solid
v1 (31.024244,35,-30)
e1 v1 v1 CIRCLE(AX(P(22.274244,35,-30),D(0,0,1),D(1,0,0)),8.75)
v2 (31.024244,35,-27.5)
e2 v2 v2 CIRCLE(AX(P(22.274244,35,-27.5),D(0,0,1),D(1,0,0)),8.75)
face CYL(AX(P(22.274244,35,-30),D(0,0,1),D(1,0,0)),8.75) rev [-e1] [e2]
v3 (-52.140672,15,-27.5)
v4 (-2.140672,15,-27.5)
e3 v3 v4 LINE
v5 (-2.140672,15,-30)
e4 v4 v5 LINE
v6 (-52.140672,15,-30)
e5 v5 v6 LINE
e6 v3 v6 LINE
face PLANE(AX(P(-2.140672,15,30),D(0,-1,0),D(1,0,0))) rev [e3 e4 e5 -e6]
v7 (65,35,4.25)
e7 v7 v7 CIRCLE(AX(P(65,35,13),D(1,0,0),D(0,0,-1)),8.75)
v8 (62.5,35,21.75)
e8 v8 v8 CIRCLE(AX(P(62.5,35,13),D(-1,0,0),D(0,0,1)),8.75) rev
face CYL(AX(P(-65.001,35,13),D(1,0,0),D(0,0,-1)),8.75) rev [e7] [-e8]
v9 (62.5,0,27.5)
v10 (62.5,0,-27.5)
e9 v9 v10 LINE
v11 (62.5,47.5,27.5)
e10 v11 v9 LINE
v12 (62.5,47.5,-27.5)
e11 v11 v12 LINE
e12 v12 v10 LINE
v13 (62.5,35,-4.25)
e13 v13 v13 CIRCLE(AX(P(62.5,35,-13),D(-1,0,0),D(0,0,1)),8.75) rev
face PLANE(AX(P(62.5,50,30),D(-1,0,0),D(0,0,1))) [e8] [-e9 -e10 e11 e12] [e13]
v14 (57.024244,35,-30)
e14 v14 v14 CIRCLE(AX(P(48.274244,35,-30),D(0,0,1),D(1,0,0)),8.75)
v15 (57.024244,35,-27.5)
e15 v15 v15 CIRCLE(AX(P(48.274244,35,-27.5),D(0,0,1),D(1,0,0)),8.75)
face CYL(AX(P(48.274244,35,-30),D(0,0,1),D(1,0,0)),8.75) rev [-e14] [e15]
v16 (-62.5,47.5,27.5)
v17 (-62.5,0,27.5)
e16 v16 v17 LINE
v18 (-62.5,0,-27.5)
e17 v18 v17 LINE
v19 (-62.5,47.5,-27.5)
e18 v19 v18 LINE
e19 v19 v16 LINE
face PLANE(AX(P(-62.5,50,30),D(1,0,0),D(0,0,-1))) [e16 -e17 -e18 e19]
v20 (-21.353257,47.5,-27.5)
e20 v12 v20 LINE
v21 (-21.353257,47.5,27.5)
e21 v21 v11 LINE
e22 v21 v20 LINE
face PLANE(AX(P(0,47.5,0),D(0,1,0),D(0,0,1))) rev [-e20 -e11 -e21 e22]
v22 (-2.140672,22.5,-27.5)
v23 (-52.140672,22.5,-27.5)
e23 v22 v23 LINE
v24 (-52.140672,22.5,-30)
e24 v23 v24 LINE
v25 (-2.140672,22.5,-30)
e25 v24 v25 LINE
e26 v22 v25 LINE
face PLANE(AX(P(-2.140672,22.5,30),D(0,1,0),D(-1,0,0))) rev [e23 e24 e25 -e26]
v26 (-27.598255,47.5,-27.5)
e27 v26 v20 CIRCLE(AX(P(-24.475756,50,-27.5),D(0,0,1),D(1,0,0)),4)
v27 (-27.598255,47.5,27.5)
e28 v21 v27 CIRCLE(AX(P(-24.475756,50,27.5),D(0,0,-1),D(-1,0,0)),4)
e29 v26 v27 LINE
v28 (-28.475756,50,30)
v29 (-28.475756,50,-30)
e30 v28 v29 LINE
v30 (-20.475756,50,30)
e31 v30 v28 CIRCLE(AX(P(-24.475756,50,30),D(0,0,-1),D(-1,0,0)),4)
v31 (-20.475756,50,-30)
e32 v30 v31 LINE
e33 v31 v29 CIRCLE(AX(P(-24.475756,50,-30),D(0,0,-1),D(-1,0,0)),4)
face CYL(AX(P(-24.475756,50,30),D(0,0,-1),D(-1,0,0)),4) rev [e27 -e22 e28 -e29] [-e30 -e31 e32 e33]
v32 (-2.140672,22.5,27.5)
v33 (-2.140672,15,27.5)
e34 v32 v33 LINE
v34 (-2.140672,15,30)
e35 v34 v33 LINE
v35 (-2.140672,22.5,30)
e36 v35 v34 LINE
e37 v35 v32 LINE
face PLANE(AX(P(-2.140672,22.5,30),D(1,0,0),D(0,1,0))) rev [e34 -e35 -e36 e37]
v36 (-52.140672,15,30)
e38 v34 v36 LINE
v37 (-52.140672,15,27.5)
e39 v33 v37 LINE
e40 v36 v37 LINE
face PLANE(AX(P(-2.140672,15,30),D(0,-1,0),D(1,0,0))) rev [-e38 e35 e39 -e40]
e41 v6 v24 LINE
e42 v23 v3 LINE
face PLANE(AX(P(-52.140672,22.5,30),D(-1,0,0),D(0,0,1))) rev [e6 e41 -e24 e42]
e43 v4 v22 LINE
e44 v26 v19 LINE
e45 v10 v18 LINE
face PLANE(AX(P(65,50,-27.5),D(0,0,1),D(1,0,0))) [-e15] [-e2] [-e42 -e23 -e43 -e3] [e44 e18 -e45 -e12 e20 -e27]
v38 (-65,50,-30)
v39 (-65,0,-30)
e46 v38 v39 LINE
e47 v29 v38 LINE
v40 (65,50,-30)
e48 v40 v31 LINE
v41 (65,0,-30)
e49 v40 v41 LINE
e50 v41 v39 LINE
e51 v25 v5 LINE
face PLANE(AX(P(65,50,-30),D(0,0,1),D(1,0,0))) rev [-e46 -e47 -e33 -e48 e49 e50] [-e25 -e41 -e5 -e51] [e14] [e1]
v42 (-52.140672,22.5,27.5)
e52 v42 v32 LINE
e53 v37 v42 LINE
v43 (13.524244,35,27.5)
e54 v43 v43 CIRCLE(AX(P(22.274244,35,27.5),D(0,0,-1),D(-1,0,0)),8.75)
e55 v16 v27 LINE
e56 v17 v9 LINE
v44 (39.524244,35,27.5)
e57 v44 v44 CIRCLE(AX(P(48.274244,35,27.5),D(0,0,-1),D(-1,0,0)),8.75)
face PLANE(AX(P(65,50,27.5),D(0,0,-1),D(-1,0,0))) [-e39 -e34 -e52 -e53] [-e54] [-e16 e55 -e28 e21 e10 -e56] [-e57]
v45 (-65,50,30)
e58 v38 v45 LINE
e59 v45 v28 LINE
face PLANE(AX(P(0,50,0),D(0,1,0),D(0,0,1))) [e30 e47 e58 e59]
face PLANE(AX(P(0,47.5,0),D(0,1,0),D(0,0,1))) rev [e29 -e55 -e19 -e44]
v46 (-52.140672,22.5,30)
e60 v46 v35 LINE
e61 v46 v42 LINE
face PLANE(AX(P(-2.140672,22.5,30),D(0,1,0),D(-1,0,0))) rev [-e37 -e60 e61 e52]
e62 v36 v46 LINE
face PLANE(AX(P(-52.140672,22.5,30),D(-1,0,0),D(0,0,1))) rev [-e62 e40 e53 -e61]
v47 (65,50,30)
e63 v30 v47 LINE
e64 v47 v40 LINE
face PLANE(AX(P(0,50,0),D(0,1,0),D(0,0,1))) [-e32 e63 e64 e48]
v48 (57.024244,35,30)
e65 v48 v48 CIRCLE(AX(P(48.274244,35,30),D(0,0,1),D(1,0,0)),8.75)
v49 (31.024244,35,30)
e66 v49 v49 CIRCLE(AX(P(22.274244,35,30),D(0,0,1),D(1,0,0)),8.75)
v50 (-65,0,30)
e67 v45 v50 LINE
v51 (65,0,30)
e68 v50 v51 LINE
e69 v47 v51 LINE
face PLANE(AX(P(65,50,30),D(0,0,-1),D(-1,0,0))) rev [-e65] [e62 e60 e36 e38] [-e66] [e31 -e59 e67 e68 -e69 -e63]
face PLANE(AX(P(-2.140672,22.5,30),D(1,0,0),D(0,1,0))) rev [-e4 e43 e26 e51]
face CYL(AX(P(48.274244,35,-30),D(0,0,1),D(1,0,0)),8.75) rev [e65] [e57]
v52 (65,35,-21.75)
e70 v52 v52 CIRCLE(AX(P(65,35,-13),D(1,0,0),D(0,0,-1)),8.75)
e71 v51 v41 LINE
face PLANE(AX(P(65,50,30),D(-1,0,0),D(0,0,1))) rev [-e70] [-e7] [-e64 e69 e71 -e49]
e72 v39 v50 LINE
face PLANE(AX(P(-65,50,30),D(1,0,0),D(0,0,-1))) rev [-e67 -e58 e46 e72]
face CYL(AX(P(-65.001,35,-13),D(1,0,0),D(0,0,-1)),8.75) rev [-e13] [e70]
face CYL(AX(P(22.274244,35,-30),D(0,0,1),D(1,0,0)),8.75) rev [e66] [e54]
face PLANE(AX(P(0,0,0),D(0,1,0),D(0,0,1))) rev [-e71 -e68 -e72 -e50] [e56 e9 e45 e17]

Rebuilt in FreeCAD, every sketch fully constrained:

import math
import FreeCAD as App
import Part
import Sketcher

V = App.Vector
Q = App.Units.Quantity


def faces_at(feature, points):
    """Names of the faces that lie closest to the given points."""
    faces = feature.Shape.Faces
    near = lambda p: min(range(len(faces)), key=lambda i: faces[i].distToShape(Part.Vertex(*p))[0])
    return sorted({f"Face{near(p) + 1}" for p in points})

doc = App.newDocument("Part")
body = doc.addObject("PartDesign::Body", "Body")

# Sketch on XZ plane
sketch1 = body.newObject("Sketcher::SketchObject", "Sketch")
sketch1.AttachmentSupport = (doc.getObject("XZ_Plane"), [""])
sketch1.MapMode = "FlatFace"
sketch1.addGeometry([
    Part.LineSegment(V(-65, -30, 0), V(-65, 30, 0)),
    Part.LineSegment(V(-65, 30, 0), V(65, 30, 0)),
    Part.LineSegment(V(65, 30, 0), V(65, -30, 0)),
    Part.LineSegment(V(65, -30, 0), V(-65, -30, 0)),
], False)
sketch1.addConstraint([
    Sketcher.Constraint("Coincident", 0, 2, 1, 1),
    Sketcher.Constraint("Coincident", 1, 2, 2, 1),
    Sketcher.Constraint("Coincident", 2, 2, 3, 1),
    Sketcher.Constraint("Coincident", 3, 2, 0, 1),
    Sketcher.Constraint("Vertical", 0),
    Sketcher.Constraint("Horizontal", 1),
    Sketcher.Constraint("Vertical", 2),
    Sketcher.Constraint("Horizontal", 3),
    Sketcher.Constraint("Symmetric", 0, 2, 2, 2, -1, 1),
    Sketcher.Constraint("DistanceX", 1, 1, 1, 2, Q("130 mm")),
    Sketcher.Constraint("DistanceY", 0, 1, 0, 2, Q("60 mm")),
])
pad1 = body.newObject("PartDesign::Pad", "Pad")
pad1.Profile = sketch1
pad1.Length = 50
pad1.Reversed = True
doc.recompute()

thickness = body.newObject("PartDesign::Thickness", "Thickness")
thickness.Base = (pad1, faces_at(pad1, [(0, 0, 0)]))
thickness.Value = 2.5
thickness.Reversed = True
thickness.Join = "Intersection"

# Sketch on YZ plane
sketch2 = body.newObject("Sketcher::SketchObject", "Sketch001")
sketch2.AttachmentSupport = (doc.getObject("YZ_Plane"), [""])
sketch2.MapMode = "FlatFace"
sketch2.AttachmentOffset = App.Placement(V(0, 0, 65), App.Rotation())
sketch2.addGeometry(Part.Circle(V(35, 13, 0), V(0, 0, 1), 9), False)
sketch2.addConstraint([
    Sketcher.Constraint("Diameter", 0, Q("17.5 mm")),
    Sketcher.Constraint("DistanceX", -1, 1, 0, 3, Q("35 mm")),
    Sketcher.Constraint("DistanceY", -1, 1, 0, 3, Q("13 mm")),
])
pocket1 = body.newObject("PartDesign::Pocket", "Pocket")
pocket1.Profile = sketch2
pocket1.Type = "UpToFirst"

# Sketch on YZ plane
sketch3 = body.newObject("Sketcher::SketchObject", "Sketch002")
sketch3.AttachmentSupport = (doc.getObject("YZ_Plane"), [""])
sketch3.MapMode = "FlatFace"
sketch3.AttachmentOffset = App.Placement(V(0, 0, 65), App.Rotation())
sketch3.addGeometry(Part.Circle(V(35, -13, 0), V(0, 0, 1), 9), False)
sketch3.addConstraint([
    Sketcher.Constraint("Diameter", 0, Q("17.5 mm")),
    Sketcher.Constraint("DistanceX", -1, 1, 0, 3, Q("35 mm")),
    Sketcher.Constraint("DistanceY", 0, 3, -1, 1, Q("13 mm")),
])
pocket2 = body.newObject("PartDesign::Pocket", "Pocket001")
pocket2.Profile = sketch3
pocket2.Type = "UpToFirst"

# Sketch on XY plane
sketch4 = body.newObject("Sketcher::SketchObject", "Sketch003")
sketch4.AttachmentSupport = (doc.getObject("XY_Plane"), [""])
sketch4.MapMode = "FlatFace"
sketch4.AttachmentOffset = App.Placement(V(0, 0, 30), App.Rotation())
sketch4.addGeometry([
    Part.Circle(V(22, 35, 0), V(0, 0, 1), 9),
    Part.Circle(V(48, 35, 0), V(0, 0, 1), 9),
], False)
sketch4.addConstraint([
    Sketcher.Constraint("Equal", 0, 1),
    Sketcher.Constraint("Horizontal", 0, 3, 1, 3),
    Sketcher.Constraint("Diameter", 0, Q("17.5 mm")),
    Sketcher.Constraint("DistanceY", -1, 1, 0, 3, Q("35 mm")),
    Sketcher.Constraint("DistanceX", 0, 3, 1, 3, Q("26 mm")),
    Sketcher.Constraint("DistanceX", -1, 1, 0, 3, Q("22.274244 mm")),
])
pocket3 = body.newObject("PartDesign::Pocket", "Pocket002")
pocket3.Profile = sketch4
pocket3.Type = "ThroughAll"

# Sketch on XY plane
sketch5 = body.newObject("Sketcher::SketchObject", "Sketch004")
sketch5.AttachmentSupport = (doc.getObject("XY_Plane"), [""])
sketch5.MapMode = "FlatFace"
sketch5.AttachmentOffset = App.Placement(V(0, 0, -30), App.Rotation())
sketch5.addGeometry([
    Part.LineSegment(V(-2, 22, 0), V(-2, 15, 0)),
    Part.LineSegment(V(-2, 15, 0), V(-52, 15, 0)),
    Part.LineSegment(V(-52, 15, 0), V(-52, 22, 0)),
    Part.LineSegment(V(-52, 22, 0), V(-2, 22, 0)),
], False)
sketch5.addConstraint([
    Sketcher.Constraint("Coincident", 0, 2, 1, 1),
    Sketcher.Constraint("Coincident", 1, 2, 2, 1),
    Sketcher.Constraint("Coincident", 2, 2, 3, 1),
    Sketcher.Constraint("Coincident", 3, 2, 0, 1),
    Sketcher.Constraint("Vertical", 0),
    Sketcher.Constraint("Horizontal", 1),
    Sketcher.Constraint("Vertical", 2),
    Sketcher.Constraint("Horizontal", 3),
    Sketcher.Constraint("DistanceX", 1, 2, 1, 1, Q("50 mm")),
    Sketcher.Constraint("DistanceY", 0, 2, 0, 1, Q("7.5 mm")),
    Sketcher.Constraint("DistanceY", -1, 1, 0, 2, Q("15 mm")),
    Sketcher.Constraint("DistanceX", 0, 2, -1, 1, Q("2.140672 mm")),
])
pocket4 = body.newObject("PartDesign::Pocket", "Pocket003")
pocket4.Profile = sketch5
pocket4.Type = "ThroughAll"
pocket4.Reversed = True

# Sketch on XY plane
sketch6 = body.newObject("Sketcher::SketchObject", "Sketch005")
sketch6.AttachmentSupport = (doc.getObject("XY_Plane"), [""])
sketch6.MapMode = "FlatFace"
sketch6.AttachmentOffset = App.Placement(V(0, 0, -30), App.Rotation())
sketch6.addGeometry([
    Part.LineSegment(V(-28.5, 50, 0), V(-20.5, 50, 0)),
    Part.ArcOfCircle(Part.Circle(V(-24.5, 50, 0), V(0, 0, 1), 4), math.radians(180), math.radians(360)),
], False)
sketch6.addConstraint([
    Sketcher.Constraint("Coincident", 0, 1, 1, 1),
    Sketcher.Constraint("Coincident", 1, 2, 0, 2),
    Sketcher.Constraint("Horizontal", 0),
    Sketcher.Constraint("Horizontal", 1, 3, 0, 1),
    Sketcher.Constraint("Radius", 1, Q("4 mm")),
    Sketcher.Constraint("DistanceY", -1, 1, 1, 3, Q("50 mm")),
    Sketcher.Constraint("DistanceX", 1, 3, -1, 1, Q("24.475756 mm")),
])
pocket5 = body.newObject("PartDesign::Pocket", "Pocket004")
pocket5.Profile = sketch6
pocket5.Type = "ThroughAll"
pocket5.Reversed = True

doc.recompute()
